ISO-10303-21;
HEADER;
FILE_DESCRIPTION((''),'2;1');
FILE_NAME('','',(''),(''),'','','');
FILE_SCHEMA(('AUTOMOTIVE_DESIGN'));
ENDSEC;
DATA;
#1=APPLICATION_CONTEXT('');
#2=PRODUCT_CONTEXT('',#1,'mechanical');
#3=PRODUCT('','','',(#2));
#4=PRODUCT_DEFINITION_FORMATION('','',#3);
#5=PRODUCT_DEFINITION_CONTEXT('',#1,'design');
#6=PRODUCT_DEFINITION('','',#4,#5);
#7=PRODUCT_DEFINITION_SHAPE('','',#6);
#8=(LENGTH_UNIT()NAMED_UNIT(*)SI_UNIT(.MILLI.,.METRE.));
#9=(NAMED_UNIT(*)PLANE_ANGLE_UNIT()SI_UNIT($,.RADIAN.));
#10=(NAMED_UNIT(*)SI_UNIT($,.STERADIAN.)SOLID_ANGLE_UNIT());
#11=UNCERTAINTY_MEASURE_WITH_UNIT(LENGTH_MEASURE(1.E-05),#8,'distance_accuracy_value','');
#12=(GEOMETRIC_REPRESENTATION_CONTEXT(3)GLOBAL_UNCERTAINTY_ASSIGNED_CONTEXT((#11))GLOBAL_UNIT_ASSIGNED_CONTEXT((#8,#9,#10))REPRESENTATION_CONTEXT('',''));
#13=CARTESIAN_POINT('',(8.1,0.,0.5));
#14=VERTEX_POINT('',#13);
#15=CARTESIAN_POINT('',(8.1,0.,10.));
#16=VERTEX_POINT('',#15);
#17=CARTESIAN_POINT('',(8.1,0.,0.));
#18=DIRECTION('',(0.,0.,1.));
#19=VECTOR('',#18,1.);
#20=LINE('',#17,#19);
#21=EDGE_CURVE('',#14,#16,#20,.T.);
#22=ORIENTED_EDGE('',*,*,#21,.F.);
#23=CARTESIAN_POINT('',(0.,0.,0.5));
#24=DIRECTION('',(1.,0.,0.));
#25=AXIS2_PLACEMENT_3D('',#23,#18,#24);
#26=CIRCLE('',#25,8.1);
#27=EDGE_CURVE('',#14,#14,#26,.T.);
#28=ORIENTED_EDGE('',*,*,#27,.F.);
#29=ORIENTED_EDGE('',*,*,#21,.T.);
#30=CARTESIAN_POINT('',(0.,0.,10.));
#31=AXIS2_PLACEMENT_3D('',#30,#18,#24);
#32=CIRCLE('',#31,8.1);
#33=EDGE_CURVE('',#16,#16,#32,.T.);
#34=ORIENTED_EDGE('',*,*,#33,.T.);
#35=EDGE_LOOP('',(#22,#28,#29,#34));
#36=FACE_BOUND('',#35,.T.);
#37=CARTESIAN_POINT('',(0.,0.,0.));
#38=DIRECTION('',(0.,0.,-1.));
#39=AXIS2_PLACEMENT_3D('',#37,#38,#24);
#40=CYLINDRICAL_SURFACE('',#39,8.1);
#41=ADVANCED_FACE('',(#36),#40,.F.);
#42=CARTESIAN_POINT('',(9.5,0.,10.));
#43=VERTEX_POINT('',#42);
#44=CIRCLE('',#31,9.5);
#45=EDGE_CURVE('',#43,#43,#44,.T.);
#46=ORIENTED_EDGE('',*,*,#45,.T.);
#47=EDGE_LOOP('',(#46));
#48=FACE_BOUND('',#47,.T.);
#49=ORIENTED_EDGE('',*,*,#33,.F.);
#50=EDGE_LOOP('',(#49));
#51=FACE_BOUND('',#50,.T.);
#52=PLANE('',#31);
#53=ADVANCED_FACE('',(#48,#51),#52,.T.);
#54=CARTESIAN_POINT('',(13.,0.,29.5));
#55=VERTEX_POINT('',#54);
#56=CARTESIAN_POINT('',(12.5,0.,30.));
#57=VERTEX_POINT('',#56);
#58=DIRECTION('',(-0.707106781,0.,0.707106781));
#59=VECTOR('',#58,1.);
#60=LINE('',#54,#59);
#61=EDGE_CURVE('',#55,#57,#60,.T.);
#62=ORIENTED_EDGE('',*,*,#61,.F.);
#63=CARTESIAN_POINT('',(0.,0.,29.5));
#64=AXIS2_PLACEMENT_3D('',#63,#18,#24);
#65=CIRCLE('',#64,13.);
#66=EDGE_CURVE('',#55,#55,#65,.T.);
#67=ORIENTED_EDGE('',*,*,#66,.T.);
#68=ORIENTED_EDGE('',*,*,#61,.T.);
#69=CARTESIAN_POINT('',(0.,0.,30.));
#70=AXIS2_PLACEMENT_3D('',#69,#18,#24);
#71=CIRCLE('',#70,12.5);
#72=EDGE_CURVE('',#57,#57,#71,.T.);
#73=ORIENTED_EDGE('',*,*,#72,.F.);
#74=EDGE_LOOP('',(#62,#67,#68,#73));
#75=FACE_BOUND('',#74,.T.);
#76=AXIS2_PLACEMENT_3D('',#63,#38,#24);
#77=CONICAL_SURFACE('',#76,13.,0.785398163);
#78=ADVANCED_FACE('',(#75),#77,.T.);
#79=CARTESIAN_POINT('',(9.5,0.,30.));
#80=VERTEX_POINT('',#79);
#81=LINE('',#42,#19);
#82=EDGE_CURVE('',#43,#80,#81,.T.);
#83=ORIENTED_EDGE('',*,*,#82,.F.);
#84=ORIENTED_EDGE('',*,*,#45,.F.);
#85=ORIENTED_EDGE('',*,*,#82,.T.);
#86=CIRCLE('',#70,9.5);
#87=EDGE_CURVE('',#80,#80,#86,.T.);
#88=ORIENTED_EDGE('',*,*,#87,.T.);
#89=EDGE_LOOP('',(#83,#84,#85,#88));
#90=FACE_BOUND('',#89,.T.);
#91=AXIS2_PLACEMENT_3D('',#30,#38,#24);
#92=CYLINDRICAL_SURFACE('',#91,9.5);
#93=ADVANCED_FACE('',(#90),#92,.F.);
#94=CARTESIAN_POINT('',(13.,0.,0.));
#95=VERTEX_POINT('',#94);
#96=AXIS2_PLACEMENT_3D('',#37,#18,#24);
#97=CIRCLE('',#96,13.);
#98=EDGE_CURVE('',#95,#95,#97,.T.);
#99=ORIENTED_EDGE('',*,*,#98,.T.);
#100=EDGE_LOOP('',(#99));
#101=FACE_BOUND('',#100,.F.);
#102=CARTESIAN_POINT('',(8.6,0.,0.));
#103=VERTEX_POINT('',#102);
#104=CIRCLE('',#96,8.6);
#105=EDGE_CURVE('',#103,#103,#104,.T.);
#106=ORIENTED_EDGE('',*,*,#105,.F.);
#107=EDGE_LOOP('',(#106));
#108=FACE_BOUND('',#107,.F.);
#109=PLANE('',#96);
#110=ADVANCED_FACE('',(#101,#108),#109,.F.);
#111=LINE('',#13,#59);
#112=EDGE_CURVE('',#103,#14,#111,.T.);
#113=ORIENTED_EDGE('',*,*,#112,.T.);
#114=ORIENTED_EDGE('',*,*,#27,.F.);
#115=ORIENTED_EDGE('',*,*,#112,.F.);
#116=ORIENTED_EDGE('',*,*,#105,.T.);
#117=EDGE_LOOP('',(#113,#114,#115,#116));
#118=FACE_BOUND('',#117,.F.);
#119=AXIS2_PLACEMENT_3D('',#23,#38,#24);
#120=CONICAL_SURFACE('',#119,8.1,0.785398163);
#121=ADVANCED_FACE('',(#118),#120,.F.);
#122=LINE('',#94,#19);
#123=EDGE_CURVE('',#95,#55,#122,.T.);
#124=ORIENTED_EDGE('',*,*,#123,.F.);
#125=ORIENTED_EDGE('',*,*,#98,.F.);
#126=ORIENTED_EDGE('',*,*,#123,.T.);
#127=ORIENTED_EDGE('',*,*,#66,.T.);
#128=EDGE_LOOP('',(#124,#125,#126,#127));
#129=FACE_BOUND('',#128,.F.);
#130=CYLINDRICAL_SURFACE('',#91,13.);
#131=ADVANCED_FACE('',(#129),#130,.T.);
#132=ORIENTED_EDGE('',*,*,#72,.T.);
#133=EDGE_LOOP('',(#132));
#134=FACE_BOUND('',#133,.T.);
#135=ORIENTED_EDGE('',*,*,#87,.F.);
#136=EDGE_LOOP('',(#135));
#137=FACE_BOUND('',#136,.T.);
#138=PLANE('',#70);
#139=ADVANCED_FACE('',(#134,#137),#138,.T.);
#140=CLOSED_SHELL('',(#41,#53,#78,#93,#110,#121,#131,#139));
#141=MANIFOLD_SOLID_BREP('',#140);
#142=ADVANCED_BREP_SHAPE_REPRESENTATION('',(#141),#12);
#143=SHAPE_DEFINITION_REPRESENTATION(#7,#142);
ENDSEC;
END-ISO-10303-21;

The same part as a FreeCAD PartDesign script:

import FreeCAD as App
import Part
import Sketcher


def edges_at(feature, points):
    """Names of the edges that pass closest to the given points."""
    edges = feature.Shape.Edges
    near = lambda p: min(range(len(edges)), key=lambda i: edges[i].distToShape(Part.Vertex(*p))[0])
    return sorted({f"Edge{near(p) + 1}" for p in points})

doc = App.newDocument("Part")
body = doc.addObject("PartDesign::Body", "Body")

sketch1 = doc.addObject("Sketcher::SketchObject", "Sketch")
body.addObject(sketch1)
sketch1.AttachmentSupport = (doc.XY_Plane, [""])
sketch1.MapMode = "FlatFace"
sketch1.addGeometry(Part.Circle(App.Vector(0, 0, 0), App.Vector(0, 0, 1), 13), False)
sketch1.addGeometry(Part.Circle(App.Vector(0, 0, 0), App.Vector(0, 0, 1), 8.1), False)
sketch1.addConstraint(Sketcher.Constraint("Coincident", 0, 3, -1, 1))
sketch1.addConstraint(Sketcher.Constraint("Coincident", 1, 3, -1, 1))
sketch1.addConstraint(Sketcher.Constraint("Diameter", 0, 26.0))
sketch1.addConstraint(Sketcher.Constraint("Diameter", 1, 16.2))
pad1 = doc.addObject("PartDesign::Pad", "Pad")
body.addObject(pad1)
pad1.Profile = sketch1
pad1.Length = 10

sketch2 = doc.addObject("Sketcher::SketchObject", "Sketch001")
body.addObject(sketch2)
sketch2.AttachmentSupport = (doc.XY_Plane, [""])
sketch2.MapMode = "FlatFace"
sketch2.AttachmentOffset = App.Placement(App.Vector(0, 0, 10), App.Rotation())
sketch2.addGeometry(Part.Circle(App.Vector(0, 0, 0), App.Vector(0, 0, 1), 13), False)
sketch2.addGeometry(Part.Circle(App.Vector(0, 0, 0), App.Vector(0, 0, 1), 9.5), False)
sketch2.addConstraint(Sketcher.Constraint("Coincident", 0, 3, -1, 1))
sketch2.addConstraint(Sketcher.Constraint("Coincident", 1, 3, -1, 1))
sketch2.addConstraint(Sketcher.Constraint("Diameter", 0, 26.0))
sketch2.addConstraint(Sketcher.Constraint("Diameter", 1, 19.0))
pad2 = doc.addObject("PartDesign::Pad", "Pad001")
body.addObject(pad2)
pad2.Profile = sketch2
pad2.Length = 20
doc.recompute()

chamfer = doc.addObject("PartDesign::Chamfer", "Chamfer")
body.addObject(chamfer)
chamfer.Base = (pad2, edges_at(pad2, [(-8.1, 0, 0)]))
chamfer.Size = 0.5
doc.recompute()

chamfer2 = doc.addObject("PartDesign::Chamfer", "Chamfer001")
body.addObject(chamfer2)
chamfer2.Base = (chamfer, edges_at(chamfer, [(-13, 0, 30)]))
chamfer2.Size = 0.5

doc.recompute()
